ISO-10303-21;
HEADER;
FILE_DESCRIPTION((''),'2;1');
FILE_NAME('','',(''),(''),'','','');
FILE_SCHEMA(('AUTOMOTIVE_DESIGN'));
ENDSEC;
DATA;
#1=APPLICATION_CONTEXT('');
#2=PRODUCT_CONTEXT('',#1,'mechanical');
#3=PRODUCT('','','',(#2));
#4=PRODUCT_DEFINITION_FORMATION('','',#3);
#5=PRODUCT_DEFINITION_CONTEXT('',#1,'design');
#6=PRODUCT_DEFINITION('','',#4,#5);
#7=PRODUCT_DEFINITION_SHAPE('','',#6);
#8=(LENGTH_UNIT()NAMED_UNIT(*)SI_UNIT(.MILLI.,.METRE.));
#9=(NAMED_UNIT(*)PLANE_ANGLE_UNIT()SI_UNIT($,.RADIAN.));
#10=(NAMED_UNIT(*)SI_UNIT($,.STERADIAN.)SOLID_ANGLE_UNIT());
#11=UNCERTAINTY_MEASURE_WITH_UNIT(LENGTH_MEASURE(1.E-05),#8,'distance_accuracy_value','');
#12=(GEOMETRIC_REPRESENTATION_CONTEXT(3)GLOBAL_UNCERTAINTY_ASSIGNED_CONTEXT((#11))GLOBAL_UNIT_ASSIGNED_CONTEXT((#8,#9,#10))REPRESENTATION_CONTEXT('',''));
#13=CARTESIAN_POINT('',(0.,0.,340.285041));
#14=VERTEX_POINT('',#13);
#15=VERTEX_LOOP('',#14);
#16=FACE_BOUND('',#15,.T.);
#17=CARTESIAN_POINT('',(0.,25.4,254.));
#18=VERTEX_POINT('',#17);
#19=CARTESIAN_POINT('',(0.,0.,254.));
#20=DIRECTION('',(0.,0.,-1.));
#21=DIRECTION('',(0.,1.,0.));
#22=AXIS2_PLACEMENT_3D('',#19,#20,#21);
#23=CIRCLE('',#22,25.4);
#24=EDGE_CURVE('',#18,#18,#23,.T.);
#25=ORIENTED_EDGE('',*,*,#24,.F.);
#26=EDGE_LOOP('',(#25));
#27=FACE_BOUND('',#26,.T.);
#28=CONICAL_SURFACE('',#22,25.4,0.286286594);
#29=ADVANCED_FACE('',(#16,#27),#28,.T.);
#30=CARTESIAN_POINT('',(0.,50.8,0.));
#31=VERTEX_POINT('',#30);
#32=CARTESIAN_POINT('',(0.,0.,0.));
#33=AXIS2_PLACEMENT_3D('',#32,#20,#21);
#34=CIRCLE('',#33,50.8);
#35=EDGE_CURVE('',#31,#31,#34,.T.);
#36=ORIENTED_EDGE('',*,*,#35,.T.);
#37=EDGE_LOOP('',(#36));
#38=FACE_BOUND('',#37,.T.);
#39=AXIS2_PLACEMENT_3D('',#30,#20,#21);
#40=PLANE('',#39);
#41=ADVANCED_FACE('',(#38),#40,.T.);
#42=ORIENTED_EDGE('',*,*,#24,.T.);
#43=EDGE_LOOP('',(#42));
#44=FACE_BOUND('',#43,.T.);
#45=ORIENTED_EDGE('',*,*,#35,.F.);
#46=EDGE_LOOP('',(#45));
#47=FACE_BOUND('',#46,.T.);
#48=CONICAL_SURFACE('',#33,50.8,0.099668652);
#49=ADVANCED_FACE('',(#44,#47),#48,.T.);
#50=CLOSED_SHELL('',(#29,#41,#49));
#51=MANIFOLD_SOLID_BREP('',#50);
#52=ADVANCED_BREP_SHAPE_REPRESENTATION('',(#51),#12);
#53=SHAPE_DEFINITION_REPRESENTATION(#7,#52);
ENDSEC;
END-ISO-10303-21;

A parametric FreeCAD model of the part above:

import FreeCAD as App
import Part
import Sketcher

V = App.Vector
Q = App.Units.Quantity


def add_polygon(sketch, points):
    """Adds a closed chain of lines whose ends are joined by coincident constraints."""
    first, n = sketch.GeometryCount, len(points)
    for a, b in zip(points, points[1:] + points[:1]):
        sketch.addGeometry(Part.LineSegment(App.Vector(*a, 0), App.Vector(*b, 0)), False)
    for i in range(n):
        sketch.addConstraint(Sketcher.Constraint("Coincident", first + i, 2, first + (i + 1) % n, 1))

doc = App.newDocument("Part")
body = doc.addObject("PartDesign::Body", "Body")

sketch1 = body.newObject("Sketcher::SketchObject", "Sketch")
sketch1.AttachmentSupport = (doc.getObject("YZ_Plane"), [""])
sketch1.MapMode = "FlatFace"
add_polygon(sketch1, [(0, 0), (51, 0), (25, 254), (0, 340)])
sketch1.addConstraint([
    Sketcher.Constraint("Horizontal", 0),
    Sketcher.Constraint("Vertical", 3),
    Sketcher.Constraint("Coincident", 3, 2, -1, 1),
    Sketcher.Constraint("DistanceX", 0, 1, 0, 2, Q("2 in")),
    Sketcher.Constraint("DistanceX", -1, 1, 1, 2, Q("1 in")),
    Sketcher.Constraint("DistanceY", -1, 1, 1, 2, Q("10 in")),
    Sketcher.Constraint("DistanceY", 3, 2, 3, 1, 340.285041),
])
revolution = body.newObject("PartDesign::Revolution", "Revolution")
revolution.Profile = sketch1
revolution.ReferenceAxis = (sketch1, ["V_Axis"])
revolution.Angle = 360

doc.recompute()
